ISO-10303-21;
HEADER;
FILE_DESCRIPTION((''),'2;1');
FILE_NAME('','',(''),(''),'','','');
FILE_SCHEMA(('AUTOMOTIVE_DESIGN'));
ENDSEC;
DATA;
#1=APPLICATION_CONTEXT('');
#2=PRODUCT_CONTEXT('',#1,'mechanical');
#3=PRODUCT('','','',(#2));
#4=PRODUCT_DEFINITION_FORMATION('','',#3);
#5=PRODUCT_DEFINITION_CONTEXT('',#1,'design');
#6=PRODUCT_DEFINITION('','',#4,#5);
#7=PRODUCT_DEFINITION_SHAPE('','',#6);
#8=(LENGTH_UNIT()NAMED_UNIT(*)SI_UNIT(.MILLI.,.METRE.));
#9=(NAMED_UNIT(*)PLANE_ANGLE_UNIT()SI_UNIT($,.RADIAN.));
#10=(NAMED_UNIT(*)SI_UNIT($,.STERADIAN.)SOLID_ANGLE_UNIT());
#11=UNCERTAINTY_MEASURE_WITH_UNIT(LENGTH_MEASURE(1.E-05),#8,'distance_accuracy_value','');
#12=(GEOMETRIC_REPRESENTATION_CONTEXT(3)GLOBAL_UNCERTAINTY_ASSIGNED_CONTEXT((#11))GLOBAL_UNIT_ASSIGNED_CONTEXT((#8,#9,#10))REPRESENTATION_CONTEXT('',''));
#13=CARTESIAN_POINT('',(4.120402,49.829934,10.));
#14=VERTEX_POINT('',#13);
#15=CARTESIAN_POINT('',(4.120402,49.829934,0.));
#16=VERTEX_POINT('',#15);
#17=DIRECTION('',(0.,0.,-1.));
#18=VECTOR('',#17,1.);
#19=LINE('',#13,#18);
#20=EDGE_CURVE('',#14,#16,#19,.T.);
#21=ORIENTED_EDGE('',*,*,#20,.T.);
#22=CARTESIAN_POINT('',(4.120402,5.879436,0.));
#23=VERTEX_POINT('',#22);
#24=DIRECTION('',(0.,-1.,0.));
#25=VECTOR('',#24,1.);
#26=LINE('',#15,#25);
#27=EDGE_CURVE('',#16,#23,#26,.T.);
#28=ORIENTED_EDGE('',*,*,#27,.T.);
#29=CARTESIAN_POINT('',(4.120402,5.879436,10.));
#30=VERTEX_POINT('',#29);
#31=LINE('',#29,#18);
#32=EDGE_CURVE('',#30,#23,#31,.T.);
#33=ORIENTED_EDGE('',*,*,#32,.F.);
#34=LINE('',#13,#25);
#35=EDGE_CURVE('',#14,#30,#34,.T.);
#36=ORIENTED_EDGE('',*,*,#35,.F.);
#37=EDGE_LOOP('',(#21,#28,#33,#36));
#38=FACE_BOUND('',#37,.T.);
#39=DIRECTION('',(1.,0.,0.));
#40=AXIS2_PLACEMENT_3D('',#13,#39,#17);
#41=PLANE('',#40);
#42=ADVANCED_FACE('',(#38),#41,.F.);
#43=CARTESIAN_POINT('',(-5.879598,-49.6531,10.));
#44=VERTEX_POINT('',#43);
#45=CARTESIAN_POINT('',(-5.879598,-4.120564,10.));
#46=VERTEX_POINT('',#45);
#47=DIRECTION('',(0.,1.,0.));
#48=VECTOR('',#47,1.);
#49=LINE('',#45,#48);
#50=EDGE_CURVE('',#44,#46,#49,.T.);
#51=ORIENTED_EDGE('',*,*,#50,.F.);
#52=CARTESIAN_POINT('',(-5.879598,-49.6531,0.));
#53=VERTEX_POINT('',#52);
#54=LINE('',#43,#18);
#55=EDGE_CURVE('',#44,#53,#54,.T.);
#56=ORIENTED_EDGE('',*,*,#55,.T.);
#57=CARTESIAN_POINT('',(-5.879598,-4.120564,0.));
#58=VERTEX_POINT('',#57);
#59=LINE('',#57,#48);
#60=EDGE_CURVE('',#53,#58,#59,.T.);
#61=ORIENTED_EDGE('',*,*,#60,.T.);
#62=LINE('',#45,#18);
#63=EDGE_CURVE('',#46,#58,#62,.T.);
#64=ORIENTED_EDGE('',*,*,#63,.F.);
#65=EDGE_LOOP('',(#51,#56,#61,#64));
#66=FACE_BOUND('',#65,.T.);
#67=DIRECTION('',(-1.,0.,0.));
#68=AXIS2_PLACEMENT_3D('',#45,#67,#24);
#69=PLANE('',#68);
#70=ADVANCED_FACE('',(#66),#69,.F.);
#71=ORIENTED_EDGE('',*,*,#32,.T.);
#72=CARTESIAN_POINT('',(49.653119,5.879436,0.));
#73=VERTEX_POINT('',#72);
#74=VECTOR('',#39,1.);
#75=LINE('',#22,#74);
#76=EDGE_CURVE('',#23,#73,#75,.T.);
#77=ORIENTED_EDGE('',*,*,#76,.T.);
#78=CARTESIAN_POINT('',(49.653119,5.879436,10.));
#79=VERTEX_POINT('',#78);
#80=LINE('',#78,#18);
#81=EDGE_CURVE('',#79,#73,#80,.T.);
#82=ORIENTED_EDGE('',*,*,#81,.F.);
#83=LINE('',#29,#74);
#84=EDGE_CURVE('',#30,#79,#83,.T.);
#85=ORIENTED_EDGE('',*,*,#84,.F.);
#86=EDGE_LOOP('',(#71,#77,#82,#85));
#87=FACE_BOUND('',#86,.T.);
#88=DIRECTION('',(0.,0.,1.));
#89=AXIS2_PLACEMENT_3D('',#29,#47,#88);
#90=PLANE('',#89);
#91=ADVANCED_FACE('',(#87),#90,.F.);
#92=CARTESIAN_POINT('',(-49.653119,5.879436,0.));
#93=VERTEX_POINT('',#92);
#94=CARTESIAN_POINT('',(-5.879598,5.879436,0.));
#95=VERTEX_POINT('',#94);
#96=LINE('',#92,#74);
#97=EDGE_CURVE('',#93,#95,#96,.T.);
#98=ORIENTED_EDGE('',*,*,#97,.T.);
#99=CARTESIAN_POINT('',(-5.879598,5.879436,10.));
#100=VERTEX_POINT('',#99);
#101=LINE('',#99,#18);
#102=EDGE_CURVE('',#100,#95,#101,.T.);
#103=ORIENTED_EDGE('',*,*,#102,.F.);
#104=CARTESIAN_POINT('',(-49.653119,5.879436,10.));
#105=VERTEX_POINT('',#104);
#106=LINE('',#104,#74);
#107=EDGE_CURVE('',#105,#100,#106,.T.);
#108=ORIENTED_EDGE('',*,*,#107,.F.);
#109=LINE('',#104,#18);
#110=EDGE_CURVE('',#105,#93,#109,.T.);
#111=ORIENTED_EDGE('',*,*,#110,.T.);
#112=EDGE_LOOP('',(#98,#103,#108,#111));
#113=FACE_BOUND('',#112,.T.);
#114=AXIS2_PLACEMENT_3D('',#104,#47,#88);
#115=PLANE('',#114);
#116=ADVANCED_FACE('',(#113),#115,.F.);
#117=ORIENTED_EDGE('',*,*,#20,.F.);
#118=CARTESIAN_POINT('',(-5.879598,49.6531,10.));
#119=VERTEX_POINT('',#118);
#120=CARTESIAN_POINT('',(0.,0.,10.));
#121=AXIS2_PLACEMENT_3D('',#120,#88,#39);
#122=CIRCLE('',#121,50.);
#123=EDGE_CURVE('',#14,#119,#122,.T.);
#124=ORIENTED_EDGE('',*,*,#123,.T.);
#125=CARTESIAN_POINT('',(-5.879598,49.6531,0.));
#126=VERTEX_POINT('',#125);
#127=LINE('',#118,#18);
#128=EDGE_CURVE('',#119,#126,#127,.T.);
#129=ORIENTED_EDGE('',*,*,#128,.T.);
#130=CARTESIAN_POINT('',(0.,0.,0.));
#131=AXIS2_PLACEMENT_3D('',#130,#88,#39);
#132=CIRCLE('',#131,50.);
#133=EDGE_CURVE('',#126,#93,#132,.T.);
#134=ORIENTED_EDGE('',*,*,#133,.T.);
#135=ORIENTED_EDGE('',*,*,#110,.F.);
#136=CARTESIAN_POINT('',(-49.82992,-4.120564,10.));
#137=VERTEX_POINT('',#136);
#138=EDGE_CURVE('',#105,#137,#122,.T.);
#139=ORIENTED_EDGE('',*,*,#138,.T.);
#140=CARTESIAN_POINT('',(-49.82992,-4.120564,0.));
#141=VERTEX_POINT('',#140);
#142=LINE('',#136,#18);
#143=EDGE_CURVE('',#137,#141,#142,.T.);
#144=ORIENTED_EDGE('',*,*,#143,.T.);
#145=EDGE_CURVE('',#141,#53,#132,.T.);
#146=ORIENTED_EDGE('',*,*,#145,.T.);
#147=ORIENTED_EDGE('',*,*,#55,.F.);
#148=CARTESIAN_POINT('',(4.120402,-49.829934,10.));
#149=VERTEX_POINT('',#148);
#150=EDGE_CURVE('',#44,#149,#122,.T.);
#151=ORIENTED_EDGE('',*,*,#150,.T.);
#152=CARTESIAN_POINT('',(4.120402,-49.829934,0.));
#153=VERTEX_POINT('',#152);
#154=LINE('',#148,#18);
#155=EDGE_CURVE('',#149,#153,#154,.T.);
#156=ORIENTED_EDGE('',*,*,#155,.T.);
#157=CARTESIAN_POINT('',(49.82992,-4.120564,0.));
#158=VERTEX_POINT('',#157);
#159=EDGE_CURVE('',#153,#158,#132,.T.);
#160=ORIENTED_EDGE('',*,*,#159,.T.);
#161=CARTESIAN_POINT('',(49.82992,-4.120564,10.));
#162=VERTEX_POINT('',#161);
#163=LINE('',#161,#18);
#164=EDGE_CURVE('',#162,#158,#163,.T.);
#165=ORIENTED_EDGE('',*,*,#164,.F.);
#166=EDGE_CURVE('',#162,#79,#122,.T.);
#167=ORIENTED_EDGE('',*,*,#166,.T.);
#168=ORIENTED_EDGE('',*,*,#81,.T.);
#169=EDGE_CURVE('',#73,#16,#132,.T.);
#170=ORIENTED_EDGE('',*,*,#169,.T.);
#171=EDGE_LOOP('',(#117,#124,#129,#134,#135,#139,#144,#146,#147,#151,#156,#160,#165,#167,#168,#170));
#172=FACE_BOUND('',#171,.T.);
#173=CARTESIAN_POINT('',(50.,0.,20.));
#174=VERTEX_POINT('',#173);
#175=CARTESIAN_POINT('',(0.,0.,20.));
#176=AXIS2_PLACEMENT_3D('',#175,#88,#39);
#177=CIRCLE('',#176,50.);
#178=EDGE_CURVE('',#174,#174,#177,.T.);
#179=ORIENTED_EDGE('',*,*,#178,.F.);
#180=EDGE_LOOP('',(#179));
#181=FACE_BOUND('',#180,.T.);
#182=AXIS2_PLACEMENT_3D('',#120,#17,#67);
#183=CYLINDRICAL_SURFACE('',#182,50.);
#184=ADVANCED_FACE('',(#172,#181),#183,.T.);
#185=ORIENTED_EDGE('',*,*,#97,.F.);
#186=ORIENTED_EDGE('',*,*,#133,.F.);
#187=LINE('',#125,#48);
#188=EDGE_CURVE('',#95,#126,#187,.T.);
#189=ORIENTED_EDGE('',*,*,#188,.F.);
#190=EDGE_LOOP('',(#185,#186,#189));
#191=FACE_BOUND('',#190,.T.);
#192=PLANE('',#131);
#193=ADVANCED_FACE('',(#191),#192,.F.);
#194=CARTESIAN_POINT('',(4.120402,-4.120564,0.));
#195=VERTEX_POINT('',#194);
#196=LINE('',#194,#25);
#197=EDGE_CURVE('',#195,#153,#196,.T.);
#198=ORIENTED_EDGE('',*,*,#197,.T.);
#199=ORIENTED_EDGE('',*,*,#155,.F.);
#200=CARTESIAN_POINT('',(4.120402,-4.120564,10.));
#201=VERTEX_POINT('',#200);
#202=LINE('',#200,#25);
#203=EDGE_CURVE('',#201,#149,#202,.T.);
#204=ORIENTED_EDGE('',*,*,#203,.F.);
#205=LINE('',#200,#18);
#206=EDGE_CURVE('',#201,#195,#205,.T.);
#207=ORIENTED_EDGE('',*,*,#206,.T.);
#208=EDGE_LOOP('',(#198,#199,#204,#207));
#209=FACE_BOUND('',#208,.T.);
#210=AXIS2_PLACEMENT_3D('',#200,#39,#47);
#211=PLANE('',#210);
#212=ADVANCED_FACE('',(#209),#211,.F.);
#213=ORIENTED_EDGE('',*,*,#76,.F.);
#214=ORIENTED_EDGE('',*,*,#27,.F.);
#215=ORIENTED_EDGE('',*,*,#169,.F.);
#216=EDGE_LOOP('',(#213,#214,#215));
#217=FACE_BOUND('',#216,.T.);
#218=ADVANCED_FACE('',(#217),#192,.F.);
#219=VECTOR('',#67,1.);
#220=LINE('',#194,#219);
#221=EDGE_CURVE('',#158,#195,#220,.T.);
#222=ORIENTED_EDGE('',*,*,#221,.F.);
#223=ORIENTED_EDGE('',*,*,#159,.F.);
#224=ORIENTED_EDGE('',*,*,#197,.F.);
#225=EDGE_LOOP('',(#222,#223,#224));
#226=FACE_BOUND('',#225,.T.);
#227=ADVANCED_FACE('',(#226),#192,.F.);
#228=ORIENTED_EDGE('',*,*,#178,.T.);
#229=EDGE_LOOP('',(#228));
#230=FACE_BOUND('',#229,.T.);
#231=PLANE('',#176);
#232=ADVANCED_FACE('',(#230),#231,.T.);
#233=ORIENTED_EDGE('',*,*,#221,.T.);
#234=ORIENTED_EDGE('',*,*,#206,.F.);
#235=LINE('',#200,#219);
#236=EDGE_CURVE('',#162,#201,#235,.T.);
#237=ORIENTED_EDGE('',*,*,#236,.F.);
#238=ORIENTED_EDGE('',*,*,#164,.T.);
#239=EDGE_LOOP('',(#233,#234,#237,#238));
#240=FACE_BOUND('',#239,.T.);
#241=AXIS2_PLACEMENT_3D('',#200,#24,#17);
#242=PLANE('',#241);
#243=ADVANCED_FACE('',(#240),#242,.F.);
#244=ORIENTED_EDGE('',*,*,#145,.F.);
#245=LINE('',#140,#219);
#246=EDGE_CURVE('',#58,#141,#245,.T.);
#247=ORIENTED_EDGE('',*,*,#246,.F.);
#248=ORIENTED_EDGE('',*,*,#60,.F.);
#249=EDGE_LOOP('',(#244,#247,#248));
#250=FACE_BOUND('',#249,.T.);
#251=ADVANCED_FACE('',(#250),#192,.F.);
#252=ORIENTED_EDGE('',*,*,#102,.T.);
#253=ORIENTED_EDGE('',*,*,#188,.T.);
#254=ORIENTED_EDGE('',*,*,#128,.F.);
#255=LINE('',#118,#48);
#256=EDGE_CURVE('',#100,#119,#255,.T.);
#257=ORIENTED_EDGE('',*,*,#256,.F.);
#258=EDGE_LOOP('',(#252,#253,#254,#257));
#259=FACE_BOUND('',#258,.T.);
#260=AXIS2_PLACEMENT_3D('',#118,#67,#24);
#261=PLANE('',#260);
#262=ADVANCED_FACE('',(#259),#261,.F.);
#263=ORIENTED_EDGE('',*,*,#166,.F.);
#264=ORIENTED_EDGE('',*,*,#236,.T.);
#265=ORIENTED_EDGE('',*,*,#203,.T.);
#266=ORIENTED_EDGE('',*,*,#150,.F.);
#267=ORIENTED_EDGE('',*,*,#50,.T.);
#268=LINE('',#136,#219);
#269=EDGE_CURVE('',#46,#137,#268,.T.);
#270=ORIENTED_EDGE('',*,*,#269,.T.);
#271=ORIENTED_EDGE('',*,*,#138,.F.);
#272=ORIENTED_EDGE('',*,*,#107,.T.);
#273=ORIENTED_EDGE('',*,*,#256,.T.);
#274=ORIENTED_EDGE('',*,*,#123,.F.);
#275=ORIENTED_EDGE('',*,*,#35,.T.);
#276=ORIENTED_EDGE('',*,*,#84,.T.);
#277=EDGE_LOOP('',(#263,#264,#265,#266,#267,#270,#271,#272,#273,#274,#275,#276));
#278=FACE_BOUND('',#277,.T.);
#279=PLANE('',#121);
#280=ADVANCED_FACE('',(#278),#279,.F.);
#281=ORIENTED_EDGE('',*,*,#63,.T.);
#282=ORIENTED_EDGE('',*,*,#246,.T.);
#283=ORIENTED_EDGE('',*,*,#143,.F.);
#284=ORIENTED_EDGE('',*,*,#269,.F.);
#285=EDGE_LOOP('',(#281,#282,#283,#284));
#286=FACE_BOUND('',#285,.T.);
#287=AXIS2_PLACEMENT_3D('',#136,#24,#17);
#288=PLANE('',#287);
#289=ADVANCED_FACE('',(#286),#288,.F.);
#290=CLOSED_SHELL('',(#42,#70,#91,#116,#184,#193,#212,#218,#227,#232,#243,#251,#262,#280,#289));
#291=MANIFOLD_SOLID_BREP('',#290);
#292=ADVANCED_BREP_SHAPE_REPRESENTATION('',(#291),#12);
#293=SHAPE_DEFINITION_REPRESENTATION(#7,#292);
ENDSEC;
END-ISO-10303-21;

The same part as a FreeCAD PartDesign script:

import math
import FreeCAD as App
import Part
import Sketcher

doc = App.newDocument("Part")
body = doc.addObject("PartDesign::Body", "Body")

sketch1 = body.newObject("Sketcher::SketchObject", "Sketch")
sketch1.AttachmentSupport = (doc.getObject("XY_Plane"), [""])
sketch1.MapMode = "FlatFace"
sketch1.addGeometry(Part.LineSegment(App.Vector(4.120402, 49.829934, 0), App.Vector(4.120402, 5.879436, 0)), False)
sketch1.addGeometry(Part.LineSegment(App.Vector(4.120402, 5.879436, 0), App.Vector(49.653119, 5.879436, 0)), False)
sketch1.addGeometry(Part.ArcOfCircle(Part.Circle(App.Vector(0, 0, 0), App.Vector(0, 0, 1), 50), math.radians(6.752961), math.radians(85.273007)), False)
sketch1.addConstraint(Sketcher.Constraint("Coincident", 0, 2, 1, 1))
sketch1.addConstraint(Sketcher.Constraint("Coincident", 1, 2, 2, 1))
sketch1.addConstraint(Sketcher.Constraint("Coincident", 2, 2, 0, 1))
sketch1.addConstraint(Sketcher.Constraint("Vertical", 0))
sketch1.addConstraint(Sketcher.Constraint("Horizontal", 1))
sketch1.addConstraint(Sketcher.Constraint("Coincident", 2, 3, -1, 1))
sketch1.addConstraint(Sketcher.Constraint("Radius", 2, 50.0))
sketch1.addConstraint(Sketcher.Constraint("DistanceX", -1, 1, 0, 2, 4.120402))
sketch1.addConstraint(Sketcher.Constraint("DistanceX", 1, 1, 1, 2, 45.532717))
pad1 = body.newObject("PartDesign::Pad", "Pad")
pad1.Profile = sketch1
pad1.Length = 10
body2 = doc.addObject("PartDesign::Body", "Body001")

sketch2 = body2.newObject("Sketcher::SketchObject", "Sketch001")
sketch2.AttachmentSupport = (doc.getObject("XY_Plane001"), [""])
sketch2.MapMode = "FlatFace"
sketch2.addGeometry(Part.LineSegment(App.Vector(-5.879598, 5.879436, 0), App.Vector(-5.879598, 49.6531, 0)), False)
sketch2.addGeometry(Part.ArcOfCircle(Part.Circle(App.Vector(0, 0, 0), App.Vector(0, 0, 1), 50), math.radians(96.753148), math.radians(173.247039)), False)
sketch2.addGeometry(Part.LineSegment(App.Vector(-49.653119, 5.879436, 0), App.Vector(-5.879598, 5.879436, 0)), False)
sketch2.addConstraint(Sketcher.Constraint("Coincident", 0, 2, 1, 1))
sketch2.addConstraint(Sketcher.Constraint("Coincident", 1, 2, 2, 1))
sketch2.addConstraint(Sketcher.Constraint("Coincident", 2, 2, 0, 1))
sketch2.addConstraint(Sketcher.Constraint("Vertical", 0))
sketch2.addConstraint(Sketcher.Constraint("Horizontal", 2))
sketch2.addConstraint(Sketcher.Constraint("Coincident", 1, 3, -1, 1))
sketch2.addConstraint(Sketcher.Constraint("Radius", 1, 50.0))
sketch2.addConstraint(Sketcher.Constraint("DistanceX", 2, 1, 2, 2, 43.773521))
sketch2.addConstraint(Sketcher.Constraint("DistanceX", 0, 2, -1, 1, 5.879598))
pad2 = body2.newObject("PartDesign::Pad", "Pad001")
pad2.Profile = sketch2
pad2.Length = 10
body3 = doc.addObject("PartDesign::Body", "Body002")

sketch3 = body3.newObject("Sketcher::SketchObject", "Sketch002")
sketch3.AttachmentSupport = (doc.getObject("XY_Plane002"), [""])
sketch3.MapMode = "FlatFace"
sketch3.addGeometry(Part.LineSegment(App.Vector(-5.879598, -4.120564, 0), App.Vector(-49.82992, -4.120564, 0)), False)
sketch3.addGeometry(Part.ArcOfCircle(Part.Circle(App.Vector(0, 0, 0), App.Vector(0, 0, 1), 50), math.radians(-175.27282), math.radians(-96.753148)), False)
sketch3.addGeometry(Part.LineSegment(App.Vector(-5.879598, -49.6531, 0), App.Vector(-5.879598, -4.120564, 0)), False)
sketch3.addConstraint(Sketcher.Constraint("Coincident", 0, 2, 1, 1))
sketch3.addConstraint(Sketcher.Constraint("Coincident", 1, 2, 2, 1))
sketch3.addConstraint(Sketcher.Constraint("Coincident", 2, 2, 0, 1))
sketch3.addConstraint(Sketcher.Constraint("Horizontal", 0))
sketch3.addConstraint(Sketcher.Constraint("Vertical", 2))
sketch3.addConstraint(Sketcher.Constraint("Coincident", 1, 3, -1, 1))
sketch3.addConstraint(Sketcher.Constraint("Radius", 1, 50.0))
sketch3.addConstraint(Sketcher.Constraint("DistanceX", 1, 2, -1, 1, 5.879598))
sketch3.addConstraint(Sketcher.Constraint("DistanceX", 0, 2, 0, 1, 43.950322))
pad3 = body3.newObject("PartDesign::Pad", "Pad002")
pad3.Profile = sketch3
pad3.Length = 10
body4 = doc.addObject("PartDesign::Body", "Body003")

sketch4 = body4.newObject("Sketcher::SketchObject", "Sketch003")
sketch4.AttachmentSupport = (doc.getObject("XY_Plane003"), [""])
sketch4.MapMode = "FlatFace"
sketch4.addGeometry(Part.LineSegment(App.Vector(4.120402, -4.120564, 0), App.Vector(4.120402, -49.829934, 0)), False)
sketch4.addGeometry(Part.ArcOfCircle(Part.Circle(App.Vector(0, 0, 0), App.Vector(0, 0, 1), 50), math.radians(-85.273007), math.radians(-4.72718)), False)
sketch4.addGeometry(Part.LineSegment(App.Vector(49.82992, -4.120564, 0), App.Vector(4.120402, -4.120564, 0)), False)
sketch4.addConstraint(Sketcher.Constraint("Coincident", 0, 2, 1, 1))
sketch4.addConstraint(Sketcher.Constraint("Coincident", 1, 2, 2, 1))
sketch4.addConstraint(Sketcher.Constraint("Coincident", 2, 2, 0, 1))
sketch4.addConstraint(Sketcher.Constraint("Vertical", 0))
sketch4.addConstraint(Sketcher.Constraint("Horizontal", 2))
sketch4.addConstraint(Sketcher.Constraint("Coincident", 1, 3, -1, 1))
sketch4.addConstraint(Sketcher.Constraint("Radius", 1, 50.0))
sketch4.addConstraint(Sketcher.Constraint("DistanceX", 2, 2, 2, 1, 45.709518))
sketch4.addConstraint(Sketcher.Constraint("DistanceY", 0, 2, 0, 1, 45.70937))
pad4 = body4.newObject("PartDesign::Pad", "Pad003")
pad4.Profile = sketch4
pad4.Length = 10
body.AllowCompound = True
doc.recompute()

boolean = body.newObject("PartDesign::Boolean", "Boolean")
boolean.Type = "Fuse"
boolean.addObjects([body2])
doc.recompute()

boolean2 = body.newObject("PartDesign::Boolean", "Boolean001")
boolean2.Type = "Fuse"
boolean2.addObjects([body3])
doc.recompute()

boolean3 = body.newObject("PartDesign::Boolean", "Boolean002")
boolean3.Type = "Fuse"
boolean3.addObjects([body4])

sketch5 = body.newObject("Sketcher::SketchObject", "Sketch004")
sketch5.AttachmentSupport = (doc.getObject("XY_Plane"), [""])
sketch5.MapMode = "FlatFace"
sketch5.AttachmentOffset = App.Placement(App.Vector(0, 0, 10), App.Rotation())
sketch5.addGeometry(Part.Circle(App.Vector(0, 0, 0), App.Vector(0, 0, 1), 50), False)
sketch5.addConstraint(Sketcher.Constraint("Coincident", 0, 3, -1, 1))
sketch5.addConstraint(Sketcher.Constraint("Diameter", 0, 100.0))
pad5 = body.newObject("PartDesign::Pad", "Pad004")
pad5.Profile = sketch5
pad5.Length = 10

doc.recompute()
